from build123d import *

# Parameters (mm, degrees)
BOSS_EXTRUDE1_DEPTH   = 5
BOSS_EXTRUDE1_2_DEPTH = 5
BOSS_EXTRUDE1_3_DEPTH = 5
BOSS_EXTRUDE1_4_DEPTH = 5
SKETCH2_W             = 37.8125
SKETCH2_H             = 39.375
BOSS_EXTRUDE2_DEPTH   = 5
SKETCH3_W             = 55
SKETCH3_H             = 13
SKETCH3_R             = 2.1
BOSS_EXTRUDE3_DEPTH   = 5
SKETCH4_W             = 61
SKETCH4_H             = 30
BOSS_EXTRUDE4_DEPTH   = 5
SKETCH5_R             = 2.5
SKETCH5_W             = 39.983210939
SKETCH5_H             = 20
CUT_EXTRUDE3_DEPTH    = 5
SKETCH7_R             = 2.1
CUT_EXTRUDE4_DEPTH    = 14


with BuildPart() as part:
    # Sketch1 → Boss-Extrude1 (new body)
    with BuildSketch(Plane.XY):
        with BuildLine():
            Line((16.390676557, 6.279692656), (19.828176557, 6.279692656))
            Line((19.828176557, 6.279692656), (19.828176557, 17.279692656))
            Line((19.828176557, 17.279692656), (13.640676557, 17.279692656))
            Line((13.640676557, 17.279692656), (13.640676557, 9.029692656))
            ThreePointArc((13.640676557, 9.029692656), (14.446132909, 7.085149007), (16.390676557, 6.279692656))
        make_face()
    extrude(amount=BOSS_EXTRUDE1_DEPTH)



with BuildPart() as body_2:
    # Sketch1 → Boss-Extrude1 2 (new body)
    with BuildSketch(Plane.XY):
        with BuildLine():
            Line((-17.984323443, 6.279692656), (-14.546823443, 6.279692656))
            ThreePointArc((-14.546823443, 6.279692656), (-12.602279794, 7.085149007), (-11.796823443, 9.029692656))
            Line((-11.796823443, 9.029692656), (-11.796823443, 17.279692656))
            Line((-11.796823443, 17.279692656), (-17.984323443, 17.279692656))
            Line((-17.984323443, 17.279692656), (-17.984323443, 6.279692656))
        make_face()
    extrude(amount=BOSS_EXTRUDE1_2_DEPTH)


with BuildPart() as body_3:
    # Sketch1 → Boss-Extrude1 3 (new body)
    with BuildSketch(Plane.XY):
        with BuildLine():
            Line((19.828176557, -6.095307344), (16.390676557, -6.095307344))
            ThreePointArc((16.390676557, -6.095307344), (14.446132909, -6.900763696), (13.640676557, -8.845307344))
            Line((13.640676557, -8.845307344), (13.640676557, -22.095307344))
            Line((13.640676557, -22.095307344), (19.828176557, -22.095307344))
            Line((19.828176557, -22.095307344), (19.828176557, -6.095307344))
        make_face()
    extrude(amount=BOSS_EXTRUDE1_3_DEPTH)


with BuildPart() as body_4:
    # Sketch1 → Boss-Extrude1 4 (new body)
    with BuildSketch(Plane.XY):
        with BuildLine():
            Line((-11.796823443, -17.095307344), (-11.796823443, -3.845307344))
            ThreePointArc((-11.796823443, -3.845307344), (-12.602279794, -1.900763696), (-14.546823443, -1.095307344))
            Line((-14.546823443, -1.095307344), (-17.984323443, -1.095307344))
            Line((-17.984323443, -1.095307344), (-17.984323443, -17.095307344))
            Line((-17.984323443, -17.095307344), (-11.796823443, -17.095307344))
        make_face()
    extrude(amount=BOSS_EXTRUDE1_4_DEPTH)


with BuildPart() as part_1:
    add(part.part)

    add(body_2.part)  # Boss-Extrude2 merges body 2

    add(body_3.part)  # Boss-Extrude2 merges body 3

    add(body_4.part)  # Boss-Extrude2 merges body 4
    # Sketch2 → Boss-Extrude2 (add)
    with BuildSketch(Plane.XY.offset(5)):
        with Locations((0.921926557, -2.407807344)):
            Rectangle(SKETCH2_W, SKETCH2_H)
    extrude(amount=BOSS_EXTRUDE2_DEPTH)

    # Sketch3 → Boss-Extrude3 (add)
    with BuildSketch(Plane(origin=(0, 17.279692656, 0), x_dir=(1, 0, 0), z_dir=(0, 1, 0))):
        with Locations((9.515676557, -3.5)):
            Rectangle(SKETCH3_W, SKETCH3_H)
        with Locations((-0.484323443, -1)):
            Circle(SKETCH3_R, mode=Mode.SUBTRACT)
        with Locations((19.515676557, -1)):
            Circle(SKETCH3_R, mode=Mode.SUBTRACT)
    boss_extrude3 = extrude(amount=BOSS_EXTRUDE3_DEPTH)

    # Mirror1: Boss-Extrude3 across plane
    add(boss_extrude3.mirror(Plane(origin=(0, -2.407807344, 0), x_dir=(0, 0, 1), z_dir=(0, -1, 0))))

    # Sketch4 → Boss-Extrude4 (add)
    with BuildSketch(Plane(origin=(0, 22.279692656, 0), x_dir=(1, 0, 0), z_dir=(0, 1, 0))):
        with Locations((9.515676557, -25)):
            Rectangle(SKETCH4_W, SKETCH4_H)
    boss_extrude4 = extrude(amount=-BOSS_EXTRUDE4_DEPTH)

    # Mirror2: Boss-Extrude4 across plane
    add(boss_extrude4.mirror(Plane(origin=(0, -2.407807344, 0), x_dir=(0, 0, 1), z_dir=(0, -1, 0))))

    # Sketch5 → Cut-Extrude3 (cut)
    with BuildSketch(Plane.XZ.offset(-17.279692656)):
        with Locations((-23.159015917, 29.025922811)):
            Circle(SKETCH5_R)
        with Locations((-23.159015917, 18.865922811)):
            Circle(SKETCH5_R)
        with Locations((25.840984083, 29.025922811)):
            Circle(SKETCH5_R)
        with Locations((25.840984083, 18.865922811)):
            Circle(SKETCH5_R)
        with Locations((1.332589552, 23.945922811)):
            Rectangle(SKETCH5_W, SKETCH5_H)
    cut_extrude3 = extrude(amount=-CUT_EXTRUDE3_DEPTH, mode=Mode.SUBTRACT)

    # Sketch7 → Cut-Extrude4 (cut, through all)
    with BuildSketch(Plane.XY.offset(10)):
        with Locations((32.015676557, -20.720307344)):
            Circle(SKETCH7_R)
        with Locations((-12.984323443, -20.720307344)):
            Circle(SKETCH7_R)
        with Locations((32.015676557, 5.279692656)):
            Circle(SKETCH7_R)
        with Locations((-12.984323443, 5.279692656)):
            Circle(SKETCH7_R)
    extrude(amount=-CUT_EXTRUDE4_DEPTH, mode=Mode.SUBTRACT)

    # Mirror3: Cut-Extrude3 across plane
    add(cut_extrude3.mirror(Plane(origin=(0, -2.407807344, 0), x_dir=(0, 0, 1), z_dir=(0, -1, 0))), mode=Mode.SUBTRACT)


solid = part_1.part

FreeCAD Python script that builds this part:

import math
import FreeCAD as App
import Part
import Sketcher
Q = App.Units.Quantity

doc = App.newDocument("Part")
body = doc.addObject("PartDesign::Body", "Body")

sketch1 = body.newObject("Sketcher::SketchObject", "Sketch")
sketch1.AttachmentSupport = (doc.getObject("XY_Plane"), [""])
sketch1.MapMode = "FlatFace"
sketch1.addGeometry([
    Part.LineSegment(App.Vector(16.4, 6.3, 0), App.Vector(19.8, 6.3, 0)),
    Part.LineSegment(App.Vector(19.8, 6.3, 0), App.Vector(19.8, 17.3, 0)),
    Part.LineSegment(App.Vector(19.8, 17.3, 0), App.Vector(13.6, 17.3, 0)),
    Part.LineSegment(App.Vector(13.6, 17.3, 0), App.Vector(13.6, 9, 0)),
    Part.ArcOfCircle(Part.Circle(App.Vector(16.4, 9, 0), App.Vector(0, 0, 1), 2.7), math.radians(180), math.radians(270)),
], False)
sketch1.addConstraint([
    Sketcher.Constraint("Coincident", 0, 2, 1, 1),
    Sketcher.Constraint("Coincident", 1, 2, 2, 1),
    Sketcher.Constraint("Coincident", 2, 2, 3, 1),
    Sketcher.Constraint("Tangent", 3, 2, 4, 1),
    Sketcher.Constraint("Tangent", 4, 2, 0, 1),
    Sketcher.Constraint("Horizontal", 0),
    Sketcher.Constraint("Vertical", 1),
    Sketcher.Constraint("Horizontal", 2),
    Sketcher.Constraint("Vertical", 3),
    Sketcher.Constraint("DistanceY", 1, 1, 1, 2, Q("11 mm")),
    Sketcher.Constraint("Radius", 4, Q("2.75 mm")),
    Sketcher.Constraint("DistanceX", 0, 1, 0, 2, Q("3.4375 mm")),
    Sketcher.Constraint("DistanceX", -1, 1, 4, 3, Q("16.390677 mm")),
    Sketcher.Constraint("DistanceY", -1, 1, 4, 3, Q("9.029693 mm")),
])
pad1 = body.newObject("PartDesign::Pad", "Pad")
pad1.Profile = sketch1
pad1.Length = 5
body2 = doc.addObject("PartDesign::Body", "Body001")

sketch2 = body2.newObject("Sketcher::SketchObject", "Sketch001")
sketch2.AttachmentSupport = (doc.getObject("XY_Plane001"), [""])
sketch2.MapMode = "FlatFace"
sketch2.addGeometry([
    Part.LineSegment(App.Vector(-18, 6.3, 0), App.Vector(-14.5, 6.3, 0)),
    Part.ArcOfCircle(Part.Circle(App.Vector(-14.5, 9, 0), App.Vector(0, 0, 1), 2.7), math.radians(-90), math.radians(0)),
    Part.LineSegment(App.Vector(-11.8, 9, 0), App.Vector(-11.8, 17.3, 0)),
    Part.LineSegment(App.Vector(-11.8, 17.3, 0), App.Vector(-18, 17.3, 0)),
    Part.LineSegment(App.Vector(-18, 17.3, 0), App.Vector(-18, 6.3, 0)),
], False)
sketch2.addConstraint([
    Sketcher.Constraint("Tangent", 0, 2, 1, 1),
    Sketcher.Constraint("Tangent", 1, 2, 2, 1),
    Sketcher.Constraint("Coincident", 2, 2, 3, 1),
    Sketcher.Constraint("Coincident", 3, 2, 4, 1),
    Sketcher.Constraint("Coincident", 4, 2, 0, 1),
    Sketcher.Constraint("Horizontal", 0),
    Sketcher.Constraint("Vertical", 2),
    Sketcher.Constraint("Horizontal", 3),
    Sketcher.Constraint("Vertical", 4),
    Sketcher.Constraint("DistanceY", 4, 2, 4, 1, Q("11 mm")),
    Sketcher.Constraint("Radius", 1, Q("2.75 mm")),
    Sketcher.Constraint("DistanceX", 0, 1, 0, 2, Q("3.4375 mm")),
    Sketcher.Constraint("DistanceX", 1, 3, -1, 1, Q("14.546823 mm")),
    Sketcher.Constraint("DistanceY", -1, 1, 1, 3, Q("9.029693 mm")),
])
pad2 = body2.newObject("PartDesign::Pad", "Pad001")
pad2.Profile = sketch2
pad2.Length = 5
body3 = doc.addObject("PartDesign::Body", "Body002")

sketch3 = body3.newObject("Sketcher::SketchObject", "Sketch002")
sketch3.AttachmentSupport = (doc.getObject("XY_Plane002"), [""])
sketch3.MapMode = "FlatFace"
sketch3.addGeometry([
    Part.LineSegment(App.Vector(19.8, -6.1, 0), App.Vector(16.4, -6.1, 0)),
    Part.ArcOfCircle(Part.Circle(App.Vector(16.4, -8.8, 0), App.Vector(0, 0, 1), 2.8), math.radians(90), math.radians(180)),
    Part.LineSegment(App.Vector(13.6, -8.8, 0), App.Vector(13.6, -22.1, 0)),
    Part.LineSegment(App.Vector(13.6, -22.1, 0), App.Vector(19.8, -22.1, 0)),
    Part.LineSegment(App.Vector(19.8, -22.1, 0), App.Vector(19.8, -6.1, 0)),
], False)
sketch3.addConstraint([
    Sketcher.Constraint("Tangent", 0, 2, 1, 1),
    Sketcher.Constraint("Tangent", 1, 2, 2, 1),
    Sketcher.Constraint("Coincident", 2, 2, 3, 1),
    Sketcher.Constraint("Coincident", 3, 2, 4, 1),
    Sketcher.Constraint("Coincident", 4, 2, 0, 1),
    Sketcher.Constraint("Horizontal", 0),
    Sketcher.Constraint("Vertical", 2),
    Sketcher.Constraint("Horizontal", 3),
    Sketcher.Constraint("Vertical", 4),
    Sketcher.Constraint("DistanceY", 4, 1, 4, 2, Q("16 mm")),
    Sketcher.Constraint("Radius", 1, Q("2.75 mm")),
    Sketcher.Constraint("DistanceX", 0, 2, 0, 1, Q("3.4375 mm")),
    Sketcher.Constraint("DistanceX", -1, 1, 1, 3, Q("16.390677 mm")),
    Sketcher.Constraint("DistanceY", 1, 3, -1, 1, Q("8.845307 mm")),
])
pad3 = body3.newObject("PartDesign::Pad", "Pad002")
pad3.Profile = sketch3
pad3.Length = 5
body4 = doc.addObject("PartDesign::Body", "Body003")

sketch4 = body4.newObject("Sketcher::SketchObject", "Sketch003")
sketch4.AttachmentSupport = (doc.getObject("XY_Plane003"), [""])
sketch4.MapMode = "FlatFace"
sketch4.addGeometry([
    Part.LineSegment(App.Vector(-11.8, -17.1, 0), App.Vector(-11.8, -3.8, 0)),
    Part.ArcOfCircle(Part.Circle(App.Vector(-14.5, -3.8, 0), App.Vector(0, 0, 1), 2.7), math.radians(0), math.radians(90)),
    Part.LineSegment(App.Vector(-14.5, -1.1, 0), App.Vector(-18, -1.1, 0)),
    Part.LineSegment(App.Vector(-18, -1.1, 0), App.Vector(-18, -17.1, 0)),
    Part.LineSegment(App.Vector(-18, -17.1, 0), App.Vector(-11.8, -17.1, 0)),
], False)
sketch4.addConstraint([
    Sketcher.Constraint("Tangent", 0, 2, 1, 1),
    Sketcher.Constraint("Tangent", 1, 2, 2, 1),
    Sketcher.Constraint("Coincident", 2, 2, 3, 1),
    Sketcher.Constraint("Coincident", 3, 2, 4, 1),
    Sketcher.Constraint("Coincident", 4, 2, 0, 1),
    Sketcher.Constraint("Vertical", 0),
    Sketcher.Constraint("Horizontal", 2),
    Sketcher.Constraint("Vertical", 3),
    Sketcher.Constraint("Horizontal", 4),
    Sketcher.Constraint("DistanceY", 3, 2, 3, 1, Q("16 mm")),
    Sketcher.Constraint("Radius", 1, Q("2.75 mm")),
    Sketcher.Constraint("DistanceX", 2, 2, 2, 1, Q("3.4375 mm")),
    Sketcher.Constraint("DistanceX", 1, 3, -1, 1, Q("14.546823 mm")),
    Sketcher.Constraint("DistanceY", 1, 3, -1, 1, Q("3.845307 mm")),
])
pad4 = body4.newObject("PartDesign::Pad", "Pad003")
pad4.Profile = sketch4
pad4.Length = 5
body.AllowCompound = True
doc.recompute()

boolean = body.newObject("PartDesign::Boolean", "Boolean")
boolean.Type = "Fuse"
boolean.addObjects([body2])
doc.recompute()

boolean2 = body.newObject("PartDesign::Boolean", "Boolean001")
boolean2.Type = "Fuse"
boolean2.addObjects([body3])
doc.recompute()

boolean3 = body.newObject("PartDesign::Boolean", "Boolean002")
boolean3.Type = "Fuse"
boolean3.addObjects([body4])

sketch5 = body.newObject("Sketcher::SketchObject", "Sketch004")
sketch5.AttachmentSupport = (doc.getObject("XY_Plane"), [""])
sketch5.MapMode = "FlatFace"
sketch5.AttachmentOffset = App.Placement(App.Vector(0, 0, 5), App.Rotation())
sketch5.addGeometry([
    Part.LineSegment(App.Vector(-18, 17, 0), App.Vector(-18, -22, 0)),
    Part.LineSegment(App.Vector(-18, -22, 0), App.Vector(20, -22, 0)),
    Part.LineSegment(App.Vector(20, -22, 0), App.Vector(20, 17, 0)),
    Part.LineSegment(App.Vector(20, 17, 0), App.Vector(-18, 17, 0)),
], False)
sketch5.addConstraint([
    Sketcher.Constraint("Coincident", 0, 2, 1, 1),
    Sketcher.Constraint("Coincident", 1, 2, 2, 1),
    Sketcher.Constraint("Coincident", 2, 2, 3, 1),
    Sketcher.Constraint("Coincident", 3, 2, 0, 1),
    Sketcher.Constraint("Vertical", 0),
    Sketcher.Constraint("Horizontal", 1),
    Sketcher.Constraint("Vertical", 2),
    Sketcher.Constraint("Horizontal", 3),
    Sketcher.Constraint("DistanceY", 0, 2, 0, 1, Q("39.375 mm")),
    Sketcher.Constraint("DistanceX", 1, 1, 1, 2, Q("37.8125 mm")),
    Sketcher.Constraint("DistanceX", 0, 2, -1, 1, Q("17.984323 mm")),
    Sketcher.Constraint("DistanceY", 0, 2, -1, 1, Q("22.095307 mm")),
])
pad5 = body.newObject("PartDesign::Pad", "Pad004")
pad5.Profile = sketch5
pad5.Length = 5

sketch6 = body.newObject("Sketcher::SketchObject", "Sketch005")
sketch6.AttachmentSupport = (doc.getObject("XZ_Plane"), [""])
sketch6.MapMode = "FlatFace"
sketch6.AttachmentOffset = App.Placement(App.Vector(0, 0, -17.279693), App.Rotation())
sketch6.addGeometry([
    Part.LineSegment(App.Vector(-18, -3, 0), App.Vector(-18, 10, 0)),
    Part.LineSegment(App.Vector(-18, 10, 0), App.Vector(37, 10, 0)),
    Part.LineSegment(App.Vector(37, 10, 0), App.Vector(37, -3, 0)),
    Part.LineSegment(App.Vector(37, -3, 0), App.Vector(-18, -3, 0)),
    Part.Circle(App.Vector(-0.5, 1, 0), App.Vector(0, 0, 1), 2.1),
    Part.Circle(App.Vector(19.5, 1, 0), App.Vector(0, 0, 1), 2.1),
], False)
sketch6.addConstraint([
    Sketcher.Constraint("Coincident", 0, 2, 1, 1),
    Sketcher.Constraint("Coincident", 1, 2, 2, 1),
    Sketcher.Constraint("Coincident", 2, 2, 3, 1),
    Sketcher.Constraint("Coincident", 3, 2, 0, 1),
    Sketcher.Constraint("Vertical", 0),
    Sketcher.Constraint("Horizontal", 1),
    Sketcher.Constraint("Vertical", 2),
    Sketcher.Constraint("Horizontal", 3),
    Sketcher.Constraint("Equal", 4, 5),
    Sketcher.Constraint("Horizontal", 4, 3, 5, 3),
    Sketcher.Constraint("Diameter", 4, Q("4.2 mm")),
    Sketcher.Constraint("DistanceX", 1, 1, 1, 2, Q("55 mm")),
    Sketcher.Constraint("DistanceY", 0, 1, 0, 2, Q("13 mm")),
    Sketcher.Constraint("DistanceY", -1, 1, 4, 3, Q("1 mm")),
    Sketcher.Constraint("DistanceY", -1, 1, 0, 2, Q("10 mm")),
    Sketcher.Constraint("DistanceX", 4, 3, 5, 3, Q("20 mm")),
    Sketcher.Constraint("DistanceX", 0, 2, 4, 3, Q("17.5 mm")),
    Sketcher.Constraint("DistanceX", 4, 3, -1, 1, Q("0.484323 mm")),
])
pad6 = body.newObject("PartDesign::Pad", "Pad005")
pad6.Profile = sketch6
pad6.Length = 5
pad6.Reversed = True
doc.recompute()

datumplane = body.newObject("PartDesign::Plane", "DatumPlane")
datumplane.AttachmentSupport = (doc.getObject("XZ_Plane"), [""])
datumplane.MapMode = "FlatFace"
datumplane.AttachmentOffset = App.Placement(App.Vector(0, 0, 2.407807), App.Rotation())
mirrored = body.newObject("PartDesign::Mirrored", "Mirrored")
mirrored.Originals = [pad6]
mirrored.MirrorPlane = (datumplane, [""])
body.Tip = mirrored

sketch7 = body.newObject("Sketcher::SketchObject", "Sketch006")
sketch7.AttachmentSupport = (doc.getObject("XZ_Plane"), [""])
sketch7.MapMode = "FlatFace"
sketch7.AttachmentOffset = App.Placement(App.Vector(0, 0, -22.279693), App.Rotation())
sketch7.addGeometry([
    Part.LineSegment(App.Vector(-21, 10, 0), App.Vector(-21, 40, 0)),
    Part.LineSegment(App.Vector(-21, 40, 0), App.Vector(40, 40, 0)),
    Part.LineSegment(App.Vector(40, 40, 0), App.Vector(40, 10, 0)),
    Part.LineSegment(App.Vector(40, 10, 0), App.Vector(-21, 10, 0)),
], False)
sketch7.addConstraint([
    Sketcher.Constraint("Coincident", 0, 2, 1, 1),
    Sketcher.Constraint("Coincident", 1, 2, 2, 1),
    Sketcher.Constraint("Coincident", 2, 2, 3, 1),
    Sketcher.Constraint("Coincident", 3, 2, 0, 1),
    Sketcher.Constraint("Vertical", 0),
    Sketcher.Constraint("Horizontal", 1),
    Sketcher.Constraint("Vertical", 2),
    Sketcher.Constraint("Horizontal", 3),
    Sketcher.Constraint("DistanceX", 1, 1, 1, 2, Q("61 mm")),
    Sketcher.Constraint("DistanceY", 0, 1, 0, 2, Q("30 mm")),
    Sketcher.Constraint("DistanceY", -1, 1, 0, 2, Q("40 mm")),
    Sketcher.Constraint("DistanceX", 0, 2, -1, 1, Q("20.984323 mm")),
])
pad7 = body.newObject("PartDesign::Pad", "Pad006")
pad7.Profile = sketch7
pad7.Length = 5
doc.recompute()

datumplane2 = body.newObject("PartDesign::Plane", "DatumPlane001")
datumplane2.AttachmentSupport = (doc.getObject("XZ_Plane"), [""])
datumplane2.MapMode = "FlatFace"
datumplane2.AttachmentOffset = App.Placement(App.Vector(0, 0, 2.407807), App.Rotation())
mirrored2 = body.newObject("PartDesign::Mirrored", "Mirrored001")
mirrored2.Originals = [pad7]
mirrored2.MirrorPlane = (datumplane2, [""])
body.Tip = mirrored2

sketch8 = body.newObject("Sketcher::SketchObject", "Sketch007")
sketch8.AttachmentSupport = (doc.getObject("XZ_Plane"), [""])
sketch8.MapMode = "FlatFace"
sketch8.AttachmentOffset = App.Placement(App.Vector(0, 0, -17.279693), App.Rotation())
sketch8.addGeometry([
    Part.Circle(App.Vector(-23.2, 29, 0), App.Vector(0, 0, 1), 2.5),
    Part.Circle(App.Vector(-23.2, 18.9, 0), App.Vector(0, 0, 1), 2.5),
    Part.Circle(App.Vector(25.8, 29, 0), App.Vector(0, 0, 1), 2.5),
    Part.Circle(App.Vector(25.8, 18.9, 0), App.Vector(0, 0, 1), 2.5),
    Part.LineSegment(App.Vector(-18.7, 33.9, 0), App.Vector(-18.7, 13.9, 0)),
    Part.LineSegment(App.Vector(-18.7, 13.9, 0), App.Vector(21.3, 13.9, 0)),
    Part.LineSegment(App.Vector(21.3, 13.9, 0), App.Vector(21.3, 33.9, 0)),
    Part.LineSegment(App.Vector(21.3, 33.9, 0), App.Vector(-18.7, 33.9, 0)),
], False)
sketch8.addConstraint([
    Sketcher.Constraint("Coincident", 4, 2, 5, 1),
    Sketcher.Constraint("Coincident", 5, 2, 6, 1),
    Sketcher.Constraint("Coincident", 6, 2, 7, 1),
    Sketcher.Constraint("Coincident", 7, 2, 4, 1),
    Sketcher.Constraint("Vertical", 4),
    Sketcher.Constraint("Horizontal", 5),
    Sketcher.Constraint("Vertical", 6),
    Sketcher.Constraint("Horizontal", 7),
    Sketcher.Constraint("Equal", 0, 1),
    Sketcher.Constraint("Equal", 1, 2),
    Sketcher.Constraint("Equal", 2, 3),
    Sketcher.Constraint("Horizontal", 0, 3, 2, 3),
    Sketcher.Constraint("Horizontal", 1, 3, 3, 3),
    Sketcher.Constraint("Vertical", 0, 3, 1, 3),
    Sketcher.Constraint("Vertical", 2, 3, 3, 3),
    Sketcher.Constraint("Diameter", 0, Q("5 mm")),
    Sketcher.Constraint("DistanceY", 4, 2, 4, 1, Q("20 mm")),
    Sketcher.Constraint("DistanceX", 0, 3, 2, 3, Q("49 mm")),
    Sketcher.Constraint("DistanceX", 1, 3, 4, 2, Q("4.5 mm")),
    Sketcher.Constraint("DistanceY", 1, 3, 0, 3, Q("10.16 mm")),
    Sketcher.Constraint("DistanceY", 4, 2, 1, 3, Q("4.92 mm")),
    Sketcher.Constraint("DistanceX", 5, 1, 5, 2, Q("39.983211 mm")),
    Sketcher.Constraint("DistanceX", 0, 3, -1, 1, Q("23.159016 mm")),
    Sketcher.Constraint("DistanceY", -1, 1, 0, 3, Q("29.025923 mm")),
])
pocket1 = body.newObject("PartDesign::Pocket", "Pocket")
pocket1.Profile = sketch8
pocket1.Length = 5

sketch9 = body.newObject("Sketcher::SketchObject", "Sketch008")
sketch9.AttachmentSupport = (doc.getObject("XY_Plane"), [""])
sketch9.MapMode = "FlatFace"
sketch9.AttachmentOffset = App.Placement(App.Vector(0, 0, 10), App.Rotation())
sketch9.addGeometry([
    Part.Circle(App.Vector(32, -20.7, 0), App.Vector(0, 0, 1), 2.1),
    Part.Circle(App.Vector(-13, -20.7, 0), App.Vector(0, 0, 1), 2.1),
    Part.Circle(App.Vector(32, 5.3, 0), App.Vector(0, 0, 1), 2.1),
    Part.Circle(App.Vector(-13, 5.3, 0), App.Vector(0, 0, 1), 2.1),
], False)
sketch9.addConstraint([
    Sketcher.Constraint("Equal", 0, 1),
    Sketcher.Constraint("Equal", 1, 2),
    Sketcher.Constraint("Equal", 2, 3),
    Sketcher.Constraint("Horizontal", 0, 3, 1, 3),
    Sketcher.Constraint("Horizontal", 2, 3, 3, 3),
    Sketcher.Constraint("Vertical", 0, 3, 2, 3),
    Sketcher.Constraint("Vertical", 1, 3, 3, 3),
    Sketcher.Constraint("Diameter", 0, Q("4.2 mm")),
    Sketcher.Constraint("DistanceX", 1, 3, 0, 3, Q("45 mm")),
    Sketcher.Constraint("DistanceY", 0, 3, 2, 3, Q("26 mm")),
    Sketcher.Constraint("DistanceX", -1, 1, 0, 3, Q("32.015677 mm")),
    Sketcher.Constraint("DistanceY", 0, 3, -1, 1, Q("20.720307 mm")),
])
pocket2 = body.newObject("PartDesign::Pocket", "Pocket001")
pocket2.Profile = sketch9
pocket2.Type = "ThroughAll"
doc.recompute()

datumplane3 = body.newObject("PartDesign::Plane", "DatumPlane002")
datumplane3.AttachmentSupport = (doc.getObject("XZ_Plane"), [""])
datumplane3.MapMode = "FlatFace"
datumplane3.AttachmentOffset = App.Placement(App.Vector(0, 0, 2.407807), App.Rotation())
mirrored3 = body.newObject("PartDesign::Mirrored", "Mirrored002")
mirrored3.Originals = [pocket1]
mirrored3.MirrorPlane = (datumplane3, [""])
body.Tip = mirrored3

doc.recompute()
